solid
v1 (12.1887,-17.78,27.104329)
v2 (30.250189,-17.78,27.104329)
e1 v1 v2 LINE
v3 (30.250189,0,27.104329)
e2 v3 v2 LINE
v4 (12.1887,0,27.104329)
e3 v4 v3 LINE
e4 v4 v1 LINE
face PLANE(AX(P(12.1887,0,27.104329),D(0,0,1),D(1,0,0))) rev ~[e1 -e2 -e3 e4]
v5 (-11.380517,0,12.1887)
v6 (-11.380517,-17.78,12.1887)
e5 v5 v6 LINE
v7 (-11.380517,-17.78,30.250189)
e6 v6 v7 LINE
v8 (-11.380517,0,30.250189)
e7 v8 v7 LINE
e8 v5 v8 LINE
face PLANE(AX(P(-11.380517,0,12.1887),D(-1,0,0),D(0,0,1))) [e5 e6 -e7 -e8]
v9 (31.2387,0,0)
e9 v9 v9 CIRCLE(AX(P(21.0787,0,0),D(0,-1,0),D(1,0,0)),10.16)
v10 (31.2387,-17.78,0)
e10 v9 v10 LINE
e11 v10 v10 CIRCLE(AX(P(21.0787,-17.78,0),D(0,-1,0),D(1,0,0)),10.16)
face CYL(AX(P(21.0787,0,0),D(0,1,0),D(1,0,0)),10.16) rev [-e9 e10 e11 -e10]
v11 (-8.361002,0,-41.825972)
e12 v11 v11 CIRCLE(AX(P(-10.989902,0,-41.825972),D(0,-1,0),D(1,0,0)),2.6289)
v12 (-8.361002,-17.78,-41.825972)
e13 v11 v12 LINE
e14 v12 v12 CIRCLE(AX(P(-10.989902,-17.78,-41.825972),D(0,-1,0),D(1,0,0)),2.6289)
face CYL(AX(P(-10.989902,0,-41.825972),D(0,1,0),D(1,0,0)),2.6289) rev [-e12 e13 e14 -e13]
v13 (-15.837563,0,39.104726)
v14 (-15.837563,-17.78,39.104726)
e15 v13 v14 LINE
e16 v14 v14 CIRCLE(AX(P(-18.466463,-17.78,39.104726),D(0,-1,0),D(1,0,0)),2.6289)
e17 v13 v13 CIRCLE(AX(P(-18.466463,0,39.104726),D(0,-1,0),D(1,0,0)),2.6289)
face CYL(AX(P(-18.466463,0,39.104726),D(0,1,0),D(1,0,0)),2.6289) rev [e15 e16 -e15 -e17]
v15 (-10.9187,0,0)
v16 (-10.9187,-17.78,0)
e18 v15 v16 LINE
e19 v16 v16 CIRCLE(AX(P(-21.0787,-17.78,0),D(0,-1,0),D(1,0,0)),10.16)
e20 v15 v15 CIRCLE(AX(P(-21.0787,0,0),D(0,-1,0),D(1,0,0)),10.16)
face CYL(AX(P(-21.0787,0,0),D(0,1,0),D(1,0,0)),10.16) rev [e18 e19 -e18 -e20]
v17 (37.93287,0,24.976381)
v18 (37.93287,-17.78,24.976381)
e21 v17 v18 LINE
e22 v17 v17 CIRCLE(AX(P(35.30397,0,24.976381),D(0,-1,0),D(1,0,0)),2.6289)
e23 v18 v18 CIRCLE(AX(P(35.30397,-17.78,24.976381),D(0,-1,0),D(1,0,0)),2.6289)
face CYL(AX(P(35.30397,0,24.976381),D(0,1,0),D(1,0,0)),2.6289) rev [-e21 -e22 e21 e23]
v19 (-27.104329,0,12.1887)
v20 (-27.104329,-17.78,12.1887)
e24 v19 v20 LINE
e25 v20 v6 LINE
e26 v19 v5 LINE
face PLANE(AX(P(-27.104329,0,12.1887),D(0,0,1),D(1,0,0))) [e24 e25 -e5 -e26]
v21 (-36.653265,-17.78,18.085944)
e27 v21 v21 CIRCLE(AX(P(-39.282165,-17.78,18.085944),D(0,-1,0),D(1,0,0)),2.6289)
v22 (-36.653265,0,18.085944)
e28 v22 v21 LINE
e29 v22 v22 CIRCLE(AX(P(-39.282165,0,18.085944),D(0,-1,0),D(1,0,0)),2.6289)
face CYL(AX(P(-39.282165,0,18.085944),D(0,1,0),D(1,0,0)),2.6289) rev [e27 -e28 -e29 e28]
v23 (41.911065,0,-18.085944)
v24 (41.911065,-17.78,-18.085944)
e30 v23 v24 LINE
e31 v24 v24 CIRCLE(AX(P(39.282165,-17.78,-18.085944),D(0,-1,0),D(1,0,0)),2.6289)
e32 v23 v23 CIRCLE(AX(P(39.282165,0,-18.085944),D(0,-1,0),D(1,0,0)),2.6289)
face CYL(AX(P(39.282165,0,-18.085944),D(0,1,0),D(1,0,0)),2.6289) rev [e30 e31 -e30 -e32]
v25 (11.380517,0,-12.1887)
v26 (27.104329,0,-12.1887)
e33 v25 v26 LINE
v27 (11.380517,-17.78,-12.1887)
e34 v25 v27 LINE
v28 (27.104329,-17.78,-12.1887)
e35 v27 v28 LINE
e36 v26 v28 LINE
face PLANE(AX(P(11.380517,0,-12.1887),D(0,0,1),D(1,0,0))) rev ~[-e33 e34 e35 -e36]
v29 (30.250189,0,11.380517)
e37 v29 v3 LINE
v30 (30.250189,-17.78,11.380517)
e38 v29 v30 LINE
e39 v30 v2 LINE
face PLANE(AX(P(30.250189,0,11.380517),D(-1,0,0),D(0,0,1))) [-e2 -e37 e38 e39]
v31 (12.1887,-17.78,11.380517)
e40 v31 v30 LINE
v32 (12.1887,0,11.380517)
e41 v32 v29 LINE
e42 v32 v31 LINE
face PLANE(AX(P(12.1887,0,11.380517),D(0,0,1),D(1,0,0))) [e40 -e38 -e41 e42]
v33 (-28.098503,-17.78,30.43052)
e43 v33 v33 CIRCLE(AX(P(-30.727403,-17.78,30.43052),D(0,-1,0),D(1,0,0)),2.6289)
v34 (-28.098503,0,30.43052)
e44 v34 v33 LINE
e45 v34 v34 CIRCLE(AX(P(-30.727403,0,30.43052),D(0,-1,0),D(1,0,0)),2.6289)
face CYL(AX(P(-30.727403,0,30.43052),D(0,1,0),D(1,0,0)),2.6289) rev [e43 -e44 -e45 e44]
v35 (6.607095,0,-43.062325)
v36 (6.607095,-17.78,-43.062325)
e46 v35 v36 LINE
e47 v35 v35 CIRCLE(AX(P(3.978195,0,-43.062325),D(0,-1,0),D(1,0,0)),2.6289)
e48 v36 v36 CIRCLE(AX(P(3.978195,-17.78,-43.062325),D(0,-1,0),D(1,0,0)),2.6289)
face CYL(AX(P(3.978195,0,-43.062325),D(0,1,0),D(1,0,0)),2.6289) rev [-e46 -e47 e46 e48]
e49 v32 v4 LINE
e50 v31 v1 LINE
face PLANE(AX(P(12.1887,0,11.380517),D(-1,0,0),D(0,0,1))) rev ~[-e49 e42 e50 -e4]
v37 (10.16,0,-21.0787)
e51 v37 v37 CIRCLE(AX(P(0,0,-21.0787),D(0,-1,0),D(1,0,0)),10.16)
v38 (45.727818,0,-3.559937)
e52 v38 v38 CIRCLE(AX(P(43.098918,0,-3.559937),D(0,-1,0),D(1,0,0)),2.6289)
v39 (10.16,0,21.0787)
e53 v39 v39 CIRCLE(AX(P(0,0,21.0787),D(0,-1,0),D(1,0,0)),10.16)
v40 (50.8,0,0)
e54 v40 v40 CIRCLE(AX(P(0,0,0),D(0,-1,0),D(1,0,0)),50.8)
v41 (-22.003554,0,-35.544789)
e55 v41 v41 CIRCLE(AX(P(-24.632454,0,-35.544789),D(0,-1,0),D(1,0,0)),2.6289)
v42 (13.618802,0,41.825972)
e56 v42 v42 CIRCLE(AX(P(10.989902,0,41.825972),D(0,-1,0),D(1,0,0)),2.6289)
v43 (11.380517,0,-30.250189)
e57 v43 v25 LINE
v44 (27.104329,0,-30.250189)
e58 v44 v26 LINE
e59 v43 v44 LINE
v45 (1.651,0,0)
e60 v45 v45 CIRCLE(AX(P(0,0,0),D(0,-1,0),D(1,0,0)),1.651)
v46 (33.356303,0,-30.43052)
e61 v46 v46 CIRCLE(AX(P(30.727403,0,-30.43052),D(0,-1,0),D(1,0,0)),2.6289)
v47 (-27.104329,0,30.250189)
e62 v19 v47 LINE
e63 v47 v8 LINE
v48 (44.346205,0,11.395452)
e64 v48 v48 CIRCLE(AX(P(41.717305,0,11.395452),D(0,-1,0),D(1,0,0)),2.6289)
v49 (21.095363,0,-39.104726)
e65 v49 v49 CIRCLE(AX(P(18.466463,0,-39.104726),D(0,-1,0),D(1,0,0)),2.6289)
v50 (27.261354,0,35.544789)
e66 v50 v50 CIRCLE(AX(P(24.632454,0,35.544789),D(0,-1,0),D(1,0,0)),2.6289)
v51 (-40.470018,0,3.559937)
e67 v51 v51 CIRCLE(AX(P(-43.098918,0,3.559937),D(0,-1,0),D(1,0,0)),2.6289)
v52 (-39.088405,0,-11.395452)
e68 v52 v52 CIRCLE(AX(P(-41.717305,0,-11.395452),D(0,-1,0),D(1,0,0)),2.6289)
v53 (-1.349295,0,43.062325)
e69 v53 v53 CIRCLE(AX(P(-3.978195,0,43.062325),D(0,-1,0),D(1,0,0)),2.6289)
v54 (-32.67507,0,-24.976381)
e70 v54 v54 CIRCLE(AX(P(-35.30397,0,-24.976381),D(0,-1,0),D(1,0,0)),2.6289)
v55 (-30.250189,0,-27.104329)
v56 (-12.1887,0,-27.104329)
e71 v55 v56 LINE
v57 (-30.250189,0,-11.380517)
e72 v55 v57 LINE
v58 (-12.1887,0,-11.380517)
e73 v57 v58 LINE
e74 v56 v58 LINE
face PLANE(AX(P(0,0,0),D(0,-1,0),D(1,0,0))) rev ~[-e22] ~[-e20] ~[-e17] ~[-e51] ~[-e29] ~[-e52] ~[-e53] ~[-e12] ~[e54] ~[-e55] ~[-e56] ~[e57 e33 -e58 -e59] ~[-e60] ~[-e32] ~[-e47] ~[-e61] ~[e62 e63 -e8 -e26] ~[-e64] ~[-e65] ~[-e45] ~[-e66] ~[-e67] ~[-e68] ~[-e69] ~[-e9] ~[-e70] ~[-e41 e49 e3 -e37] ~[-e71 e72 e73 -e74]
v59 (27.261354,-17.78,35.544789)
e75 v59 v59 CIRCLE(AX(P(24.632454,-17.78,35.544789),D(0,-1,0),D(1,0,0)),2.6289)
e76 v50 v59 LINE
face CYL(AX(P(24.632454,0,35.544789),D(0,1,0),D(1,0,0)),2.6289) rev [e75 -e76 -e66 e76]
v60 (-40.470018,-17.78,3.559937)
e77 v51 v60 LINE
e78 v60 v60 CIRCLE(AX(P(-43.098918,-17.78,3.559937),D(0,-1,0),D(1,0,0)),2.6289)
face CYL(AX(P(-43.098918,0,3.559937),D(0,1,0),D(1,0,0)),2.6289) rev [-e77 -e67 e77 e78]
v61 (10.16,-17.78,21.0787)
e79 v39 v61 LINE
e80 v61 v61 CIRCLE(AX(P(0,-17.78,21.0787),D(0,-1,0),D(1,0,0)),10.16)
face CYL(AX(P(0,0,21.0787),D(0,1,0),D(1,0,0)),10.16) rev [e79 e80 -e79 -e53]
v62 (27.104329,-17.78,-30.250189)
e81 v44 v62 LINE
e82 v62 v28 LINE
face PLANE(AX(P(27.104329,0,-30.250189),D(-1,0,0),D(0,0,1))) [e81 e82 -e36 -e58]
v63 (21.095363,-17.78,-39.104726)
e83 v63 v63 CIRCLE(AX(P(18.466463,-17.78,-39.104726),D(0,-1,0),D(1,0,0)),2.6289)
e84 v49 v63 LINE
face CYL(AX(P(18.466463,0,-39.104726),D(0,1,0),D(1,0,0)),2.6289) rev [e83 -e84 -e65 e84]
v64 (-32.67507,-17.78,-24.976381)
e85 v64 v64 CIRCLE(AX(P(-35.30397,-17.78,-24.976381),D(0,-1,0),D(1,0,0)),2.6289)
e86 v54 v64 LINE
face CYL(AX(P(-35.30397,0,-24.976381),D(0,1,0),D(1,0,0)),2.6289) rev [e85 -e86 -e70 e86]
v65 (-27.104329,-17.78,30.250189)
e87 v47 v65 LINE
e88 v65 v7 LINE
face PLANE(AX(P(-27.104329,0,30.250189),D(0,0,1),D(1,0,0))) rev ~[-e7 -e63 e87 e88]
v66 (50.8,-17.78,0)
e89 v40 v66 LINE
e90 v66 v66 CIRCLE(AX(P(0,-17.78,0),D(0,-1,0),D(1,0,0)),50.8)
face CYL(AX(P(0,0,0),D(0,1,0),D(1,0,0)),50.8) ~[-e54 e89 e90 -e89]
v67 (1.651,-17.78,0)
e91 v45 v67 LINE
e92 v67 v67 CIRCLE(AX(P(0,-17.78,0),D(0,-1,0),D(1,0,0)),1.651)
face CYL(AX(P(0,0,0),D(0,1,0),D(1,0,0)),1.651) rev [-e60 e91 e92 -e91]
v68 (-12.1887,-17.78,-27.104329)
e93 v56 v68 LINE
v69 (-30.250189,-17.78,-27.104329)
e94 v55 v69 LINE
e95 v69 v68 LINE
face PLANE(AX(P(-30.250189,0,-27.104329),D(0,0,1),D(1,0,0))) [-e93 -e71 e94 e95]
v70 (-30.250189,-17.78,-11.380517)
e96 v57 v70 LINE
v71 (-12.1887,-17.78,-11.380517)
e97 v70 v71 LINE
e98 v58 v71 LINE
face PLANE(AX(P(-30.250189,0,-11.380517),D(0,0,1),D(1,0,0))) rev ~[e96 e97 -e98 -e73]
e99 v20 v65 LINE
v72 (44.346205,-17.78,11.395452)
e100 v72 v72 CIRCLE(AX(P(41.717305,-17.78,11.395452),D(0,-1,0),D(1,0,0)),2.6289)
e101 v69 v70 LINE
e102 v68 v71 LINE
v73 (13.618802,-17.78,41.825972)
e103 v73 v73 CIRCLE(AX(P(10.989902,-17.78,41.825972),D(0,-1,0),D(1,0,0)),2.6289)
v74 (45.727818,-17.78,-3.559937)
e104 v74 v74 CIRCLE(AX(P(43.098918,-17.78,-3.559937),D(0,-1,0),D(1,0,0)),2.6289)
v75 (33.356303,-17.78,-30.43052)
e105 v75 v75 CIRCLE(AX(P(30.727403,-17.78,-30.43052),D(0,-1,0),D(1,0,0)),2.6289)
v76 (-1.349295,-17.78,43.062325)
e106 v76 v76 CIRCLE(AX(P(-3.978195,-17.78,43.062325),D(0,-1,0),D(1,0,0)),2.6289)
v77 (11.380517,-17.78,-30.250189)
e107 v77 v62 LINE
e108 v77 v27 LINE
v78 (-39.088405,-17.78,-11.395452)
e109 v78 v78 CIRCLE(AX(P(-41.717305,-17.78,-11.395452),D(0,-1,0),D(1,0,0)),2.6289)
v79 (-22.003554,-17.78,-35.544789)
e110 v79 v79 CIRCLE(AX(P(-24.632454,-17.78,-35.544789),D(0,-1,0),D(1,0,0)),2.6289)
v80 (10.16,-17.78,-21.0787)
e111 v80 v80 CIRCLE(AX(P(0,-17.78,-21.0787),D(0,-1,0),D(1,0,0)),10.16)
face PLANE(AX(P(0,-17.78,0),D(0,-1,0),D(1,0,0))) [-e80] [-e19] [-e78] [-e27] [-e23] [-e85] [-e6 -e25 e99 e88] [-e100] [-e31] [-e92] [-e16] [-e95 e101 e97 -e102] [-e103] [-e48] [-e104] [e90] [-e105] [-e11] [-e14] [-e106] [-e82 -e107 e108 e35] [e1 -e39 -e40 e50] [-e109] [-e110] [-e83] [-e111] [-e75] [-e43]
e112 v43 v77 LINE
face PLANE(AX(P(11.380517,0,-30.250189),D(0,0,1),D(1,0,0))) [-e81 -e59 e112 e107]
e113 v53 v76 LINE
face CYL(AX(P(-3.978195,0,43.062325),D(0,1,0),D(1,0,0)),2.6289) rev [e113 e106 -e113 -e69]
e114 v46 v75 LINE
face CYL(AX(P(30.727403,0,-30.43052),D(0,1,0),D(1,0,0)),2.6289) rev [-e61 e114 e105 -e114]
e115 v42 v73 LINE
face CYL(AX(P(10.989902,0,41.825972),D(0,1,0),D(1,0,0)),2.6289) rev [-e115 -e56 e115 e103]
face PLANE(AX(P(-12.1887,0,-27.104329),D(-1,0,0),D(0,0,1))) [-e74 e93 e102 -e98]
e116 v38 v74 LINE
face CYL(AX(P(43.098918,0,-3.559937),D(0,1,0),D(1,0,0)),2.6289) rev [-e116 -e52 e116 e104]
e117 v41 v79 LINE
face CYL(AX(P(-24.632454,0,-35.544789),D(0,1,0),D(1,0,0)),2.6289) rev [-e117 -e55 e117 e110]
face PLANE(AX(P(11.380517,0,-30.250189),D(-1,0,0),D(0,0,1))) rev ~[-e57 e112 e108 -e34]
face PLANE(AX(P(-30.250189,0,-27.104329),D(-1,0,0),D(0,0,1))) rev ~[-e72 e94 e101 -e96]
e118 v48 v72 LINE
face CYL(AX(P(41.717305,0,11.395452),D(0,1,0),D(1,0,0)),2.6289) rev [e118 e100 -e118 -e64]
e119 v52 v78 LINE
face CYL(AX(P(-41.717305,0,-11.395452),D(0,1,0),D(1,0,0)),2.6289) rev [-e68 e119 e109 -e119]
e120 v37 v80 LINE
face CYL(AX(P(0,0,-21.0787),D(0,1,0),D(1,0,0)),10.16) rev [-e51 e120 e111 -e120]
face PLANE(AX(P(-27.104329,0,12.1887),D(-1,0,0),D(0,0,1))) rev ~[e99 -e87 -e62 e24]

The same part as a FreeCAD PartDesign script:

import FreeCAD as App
import Part
import Sketcher
from FreeCAD import Vector
Q = App.Units.Quantity

doc = App.newDocument("Part")
body = doc.addObject("PartDesign::Body", "Body")

# Sketch on XZ plane
sketch1 = body.newObject("Sketcher::SketchObject", "Sketch")
sketch1.AttachmentSupport = (doc.getObject("XZ_Plane"), [""])
sketch1.MapMode = "FlatFace"
sketch1.addGeometry([
    Part.Circle(Vector(0, 0, 0), Vector(0, 0, 1), 50.8),  # 0
    Part.Circle(Vector(-24.6, -35.5, 0), Vector(0, 0, 1), 2.6),  # 1
    Part.Circle(Vector(-35.3, -25, 0), Vector(0, 0, 1), 2.6),  # 2
    Part.Circle(Vector(-11, -41.8, 0), Vector(0, 0, 1), 2.6),  # 3
    Part.Circle(Vector(-41.7, -11.4, 0), Vector(0, 0, 1), 2.6),  # 4
    Part.LineSegment(Vector(-12.2, -27.1, 0), Vector(-30.3, -27.1, 0)),  # 5
    Part.LineSegment(Vector(-30.3, -27.1, 0), Vector(-30.3, -11.4, 0)),  # 6
    Part.LineSegment(Vector(-30.3, -11.4, 0), Vector(-12.2, -11.4, 0)),  # 7
    Part.LineSegment(Vector(-12.2, -11.4, 0), Vector(-12.2, -27.1, 0)),  # 8
    Part.Circle(Vector(0, -21.1, 0), Vector(0, 0, 1), 10.2),  # 9
    Part.Circle(Vector(4, -43.1, 0), Vector(0, 0, 1), 2.6),  # 10
    Part.Circle(Vector(18.5, -39.1, 0), Vector(0, 0, 1), 2.6),  # 11
    Part.Circle(Vector(30.7, -30.4, 0), Vector(0, 0, 1), 2.6),  # 12
    Part.LineSegment(Vector(27.1, -30.3, 0), Vector(11.4, -30.3, 0)),  # 13
    Part.LineSegment(Vector(11.4, -30.3, 0), Vector(11.4, -12.2, 0)),  # 14
    Part.LineSegment(Vector(11.4, -12.2, 0), Vector(27.1, -12.2, 0)),  # 15
    Part.LineSegment(Vector(27.1, -12.2, 0), Vector(27.1, -30.3, 0)),  # 16
    Part.Circle(Vector(39.3, -18.1, 0), Vector(0, 0, 1), 2.6),  # 17
    Part.Circle(Vector(43.1, -3.6, 0), Vector(0, 0, 1), 2.6),  # 18
    Part.Circle(Vector(-43.1, 3.6, 0), Vector(0, 0, 1), 2.6),  # 19
    Part.Circle(Vector(-39.3, 18.1, 0), Vector(0, 0, 1), 2.6),  # 20
    Part.Circle(Vector(-21.1, 0, 0), Vector(0, 0, 1), 10.2),  # 21
    Part.Circle(Vector(0, 0, 0), Vector(0, 0, 1), 1.7),  # 22
    Part.LineSegment(Vector(-11.4, 12.2, 0), Vector(-27.1, 12.2, 0)),  # 23
    Part.LineSegment(Vector(-27.1, 12.2, 0), Vector(-27.1, 30.3, 0)),  # 24
    Part.LineSegment(Vector(-27.1, 30.3, 0), Vector(-11.4, 30.3, 0)),  # 25
    Part.LineSegment(Vector(-11.4, 30.3, 0), Vector(-11.4, 12.2, 0)),  # 26
    Part.Circle(Vector(0, 21.1, 0), Vector(0, 0, 1), 10.2),  # 27
    Part.Circle(Vector(-30.7, 30.4, 0), Vector(0, 0, 1), 2.6),  # 28
    Part.Circle(Vector(-18.5, 39.1, 0), Vector(0, 0, 1), 2.6),  # 29
    Part.Circle(Vector(-4, 43.1, 0), Vector(0, 0, 1), 2.6),  # 30
    Part.Circle(Vector(21.1, 0, 0), Vector(0, 0, 1), 10.2),  # 31
    Part.LineSegment(Vector(30.3, 11.4, 0), Vector(12.2, 11.4, 0)),  # 32
    Part.LineSegment(Vector(12.2, 11.4, 0), Vector(12.2, 27.1, 0)),  # 33
    Part.LineSegment(Vector(12.2, 27.1, 0), Vector(30.3, 27.1, 0)),  # 34
    Part.LineSegment(Vector(30.3, 27.1, 0), Vector(30.3, 11.4, 0)),  # 35
    Part.Circle(Vector(41.7, 11.4, 0), Vector(0, 0, 1), 2.6),  # 36
    Part.Circle(Vector(11, 41.8, 0), Vector(0, 0, 1), 2.6),  # 37
    Part.Circle(Vector(35.3, 25, 0), Vector(0, 0, 1), 2.6),  # 38
    Part.Circle(Vector(24.6, 35.5, 0), Vector(0, 0, 1), 2.6),  # 39
], False)
sketch1.addConstraint([
    Sketcher.Constraint("Coincident", 5, 2, 6, 1),
    Sketcher.Constraint("Coincident", 6, 2, 7, 1),
    Sketcher.Constraint("Coincident", 7, 2, 8, 1),
    Sketcher.Constraint("Coincident", 8, 2, 5, 1),
    Sketcher.Constraint("Coincident", 13, 2, 14, 1),
    Sketcher.Constraint("Coincident", 14, 2, 15, 1),
    Sketcher.Constraint("Coincident", 15, 2, 16, 1),
    Sketcher.Constraint("Coincident", 16, 2, 13, 1),
    Sketcher.Constraint("Coincident", 23, 2, 24, 1),
    Sketcher.Constraint("Coincident", 24, 2, 25, 1),
    Sketcher.Constraint("Coincident", 25, 2, 26, 1),
    Sketcher.Constraint("Coincident", 26, 2, 23, 1),
    Sketcher.Constraint("Coincident", 32, 2, 33, 1),
    Sketcher.Constraint("Coincident", 33, 2, 34, 1),
    Sketcher.Constraint("Coincident", 34, 2, 35, 1),
    Sketcher.Constraint("Coincident", 35, 2, 32, 1),
    Sketcher.Constraint("Horizontal", 5),
    Sketcher.Constraint("Vertical", 6),
    Sketcher.Constraint("Horizontal", 7),
    Sketcher.Constraint("Vertical", 8),
    Sketcher.Constraint("Horizontal", 13),
    Sketcher.Constraint("Vertical", 14),
    Sketcher.Constraint("Horizontal", 15),
    Sketcher.Constraint("Vertical", 16),
    Sketcher.Constraint("Horizontal", 23),
    Sketcher.Constraint("Vertical", 24),
    Sketcher.Constraint("Horizontal", 25),
    Sketcher.Constraint("Vertical", 26),
    Sketcher.Constraint("Horizontal", 32),
    Sketcher.Constraint("Vertical", 33),
    Sketcher.Constraint("Horizontal", 34),
    Sketcher.Constraint("Vertical", 35),
    Sketcher.Constraint("Coincident", 0, 3, -1, 1),
    Sketcher.Constraint("Coincident", 22, 3, -1, 1),
    Sketcher.Constraint("Equal", 1, 2),
    Sketcher.Constraint("Equal", 2, 3),
    Sketcher.Constraint("Equal", 3, 4),
    Sketcher.Constraint("Equal", 4, 10),
    Sketcher.Constraint("Equal", 10, 11),
    Sketcher.Constraint("Equal", 11, 12),
    Sketcher.Constraint("Equal", 12, 17),
    Sketcher.Constraint("Equal", 17, 18),
    Sketcher.Constraint("Equal", 18, 19),
    Sketcher.Constraint("Equal", 19, 20),
    Sketcher.Constraint("Equal", 9, 21),
    Sketcher.Constraint("Equal", 21, 27),
    Sketcher.Constraint("Equal", 20, 28),
    Sketcher.Constraint("Equal", 28, 29),
    Sketcher.Constraint("Equal", 29, 30),
    Sketcher.Constraint("Equal", 27, 31),
    Sketcher.Constraint("Equal", 30, 36),
    Sketcher.Constraint("Equal", 36, 37),
    Sketcher.Constraint("Equal", 37, 38),
    Sketcher.Constraint("Equal", 38, 39),
    Sketcher.Constraint("Symmetric", 18, 3, 19, 3, -1, 1),
    Sketcher.Constraint("Symmetric", 17, 3, 20, 3, -1, 1),
    Sketcher.Constraint("Symmetric", 9, 3, 27, 3, -1, 1),
    Sketcher.Constraint("Symmetric", 12, 3, 28, 3, -1, 1),
    Sketcher.Constraint("Symmetric", 11, 3, 29, 3, -1, 1),
    Sketcher.Constraint("Symmetric", 10, 3, 30, 3, -1, 1),
    Sketcher.Constraint("Symmetric", 21, 3, 31, 3, -1, 1),
    Sketcher.Constraint("Symmetric", 4, 3, 36, 3, -1, 1),
    Sketcher.Constraint("Symmetric", 3, 3, 37, 3, -1, 1),
    Sketcher.Constraint("Symmetric", 2, 3, 38, 3, -1, 1),
    Sketcher.Constraint("Symmetric", 1, 3, 39, 3, -1, 1),
    Sketcher.Constraint("Symmetric", 15, 2, 23, 2, -1, 1),
    Sketcher.Constraint("Symmetric", 13, 2, 25, 2, -1, 1),
    Sketcher.Constraint("Symmetric", 7, 2, 32, 2, -1, 1),
    Sketcher.Constraint("Symmetric", 5, 2, 34, 2, -1, 1),
    Sketcher.Constraint("PointOnObject", 9, 3, -2),
    Sketcher.Constraint("PointOnObject", 21, 3, -1),
    Sketcher.Constraint("Equal", 25, 6),
    Sketcher.Constraint("Equal", 34, 14),
    Sketcher.Constraint("Diameter", 0, Q("4 in")),
    Sketcher.Constraint("Diameter", 9, Q("0.8 in")),
    Sketcher.Constraint("Diameter", 22, Q("0.13 in")),
    Sketcher.Constraint("Diameter", 1, Q("0.207 in")),
    Sketcher.Constraint("DistanceX", 21, 3, 7, 2, Q("0.35 in")),
    Sketcher.Constraint("DistanceY", 9, 3, 14, 2, Q("0.35 in")),
    Sketcher.Constraint("DistanceX", 5, 2, 5, 1, 18.061489),
    Sketcher.Constraint("DistanceY", 9, 3, -1, 1, 21.0787),
    Sketcher.Constraint("DistanceX", 21, 3, -1, 1, 21.0787),
    Sketcher.Constraint("DistanceY", 10, 3, 11, 3, 3.957599),
    Sketcher.Constraint("DistanceX", 11, 3, 17, 3, 20.815702),
    Sketcher.Constraint("DistanceX", 13, 2, 13, 1, 15.723812),
    Sketcher.Constraint("DistanceY", 1, 3, -1, 1, 35.544789),
    Sketcher.Constraint("DistanceX", 2, 3, -1, 1, 35.30397),
    Sketcher.Constraint("DistanceY", 2, 3, -1, 1, 24.976381),
    Sketcher.Constraint("DistanceY", 12, 3, -1, 1, 30.43052),
    Sketcher.Constraint("DistanceY", 5, 2, -1, 1, 27.104329),
    Sketcher.Constraint("DistanceX", -1, 1, 15, 2, 27.104329),
    Sketcher.Constraint("DistanceX", 1, 3, 3, 3, 13.642552),
    Sketcher.Constraint("DistanceY", 3, 3, 2, 3, 16.849591),
    Sketcher.Constraint("DistanceY", 2, 3, 4, 3, 13.580929),
    Sketcher.Constraint("DistanceX", 4, 3, 1, 3, 17.084851),
    Sketcher.Constraint("DistanceX", 1, 3, 10, 3, 28.610649),
    Sketcher.Constraint("DistanceX", 10, 3, 11, 3, 14.488268),
    Sketcher.Constraint("DistanceX", 11, 3, 12, 3, 12.26094),
    Sketcher.Constraint("DistanceY", 11, 3, 17, 3, 21.018782),
    Sketcher.Constraint("DistanceY", 11, 3, 18, 3, 35.544789),
    Sketcher.Constraint("DistanceY", 4, 3, 19, 3, 14.955389),
    Sketcher.Constraint("DistanceX", 4, 3, 20, 3, 2.43514),
    Sketcher.Constraint("DistanceX", 19, 3, 6, 2, 12.848729),
])
pad1 = body.newObject("PartDesign::Pad", "Pad")
pad1.Profile = sketch1
pad1.Length = Q("0.7 in")

doc.recompute()
